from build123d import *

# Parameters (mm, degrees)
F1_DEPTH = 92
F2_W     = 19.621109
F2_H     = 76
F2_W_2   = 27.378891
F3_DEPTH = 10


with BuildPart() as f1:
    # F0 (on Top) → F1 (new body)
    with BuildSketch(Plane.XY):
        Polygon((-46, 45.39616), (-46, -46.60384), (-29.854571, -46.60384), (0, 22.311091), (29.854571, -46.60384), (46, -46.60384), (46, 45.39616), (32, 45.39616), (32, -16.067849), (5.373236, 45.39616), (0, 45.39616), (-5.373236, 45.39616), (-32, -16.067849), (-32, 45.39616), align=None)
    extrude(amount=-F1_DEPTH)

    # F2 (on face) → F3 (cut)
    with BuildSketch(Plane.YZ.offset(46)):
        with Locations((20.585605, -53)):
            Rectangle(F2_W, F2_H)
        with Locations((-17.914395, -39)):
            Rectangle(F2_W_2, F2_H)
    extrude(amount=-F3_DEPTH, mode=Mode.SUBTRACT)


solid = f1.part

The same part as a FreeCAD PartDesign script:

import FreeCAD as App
import Part
import Sketcher
from FreeCAD import Vector


def add_polygon(sketch, points):
    """Adds a closed chain of lines whose ends are joined by coincident constraints."""
    first, n = sketch.GeometryCount, len(points)
    for a, b in zip(points, points[1:] + points[:1]):
        sketch.addGeometry(Part.LineSegment(App.Vector(*a, 0), App.Vector(*b, 0)), False)
    for i in range(n):
        sketch.addConstraint(Sketcher.Constraint("Coincident", first + i, 2, first + (i + 1) % n, 1))

doc = App.newDocument("Part")
params = doc.addObject("Spreadsheet::Sheet", "Params")
for row, (alias, value) in enumerate([
    ("sketch1_width", "14 mm"),
    ("sketch1_height", "92 mm"),
    ("pad1_length", "92 mm"),
    ("sketch2_height", "76 mm"),
    ("pocket1_length", "10 mm"),
], start=1):
    params.set(f"A{row}", alias)
    params.set(f"B{row}", "=" + value)
    params.setAlias(f"B{row}", alias)

body = doc.addObject("PartDesign::Body", "Body")

# Sketch on XY plane
sketch1 = body.newObject("Sketcher::SketchObject", "Sketch")
sketch1.AttachmentSupport = (doc.getObject("XY_Plane"), [""])
sketch1.MapMode = "FlatFace"
add_polygon(sketch1, [(-46, 45.39616), (-46, -46.60384), (-29.854571, -46.60384), (0, 22.311091), (29.854571, -46.60384), (46, -46.60384), (46, 45.39616), (32, 45.39616), (32, -16.067849), (5.373236, 45.39616), (-5.373236, 45.39616), (-32, -16.067849), (-32, 45.39616)])  # lines 0-12
sketch1.addConstraint(Sketcher.Constraint("Vertical", 0))
sketch1.addConstraint(Sketcher.Constraint("Horizontal", 1))
sketch1.addConstraint(Sketcher.Constraint("Horizontal", 4))
sketch1.addConstraint(Sketcher.Constraint("Vertical", 5))
sketch1.addConstraint(Sketcher.Constraint("Horizontal", 6))
sketch1.addConstraint(Sketcher.Constraint("Vertical", 7))
sketch1.addConstraint(Sketcher.Constraint("Horizontal", 9))
sketch1.addConstraint(Sketcher.Constraint("Vertical", 11))
sketch1.addConstraint(Sketcher.Constraint("Horizontal", 12))
sketch1.addConstraint(Sketcher.Constraint("Symmetric", 1, 2, 3, 2, -2))
sketch1.addConstraint(Sketcher.Constraint("Symmetric", 7, 2, 10, 2, -2))
sketch1.addConstraint(Sketcher.Constraint("Symmetric", 5, 2, 12, 2, -2))
sketch1.addConstraint(Sketcher.Constraint("PointOnObject", 2, 2, -2))
sketch1.addConstraint(Sketcher.Constraint("Parallel", 3, 8))
sketch1.addConstraint(Sketcher.Constraint("Parallel", 2, 10))
sketch1.addConstraint(Sketcher.Constraint("Horizontal", 6, 2, 8, 2))
sketch1.addConstraint(Sketcher.Constraint("DistanceX", 6, 2, 6, 1, 14.0))
sketch1.addConstraint(Sketcher.Constraint("DistanceY", 0, 2, 0, 1, 92.0))
sketch1.addConstraint(Sketcher.Constraint("DistanceX", 0, 2, -1, 1, 46.0))
sketch1.addConstraint(Sketcher.Constraint("DistanceX", 1, 1, 1, 2, 16.145429))
sketch1.addConstraint(Sketcher.Constraint("DistanceY", 7, 2, 7, 1, 61.464009))
sketch1.addConstraint(Sketcher.Constraint("DistanceX", 9, 2, 9, 1, 10.746472))
sketch1.addConstraint(Sketcher.Constraint("DistanceY", 0, 2, -1, 1, 46.60384))
sketch1.setExpression("Constraints[29]", "Params.sketch1_width")
sketch1.setExpression("Constraints[30]", "Params.sketch1_height")
pad1 = body.newObject("PartDesign::Pad", "Pad")
pad1.Profile = sketch1
pad1.setExpression("Length", "Params.pad1_length")
pad1.Reversed = True

# Sketch on YZ plane
sketch2 = body.newObject("Sketcher::SketchObject", "Sketch001")
sketch2.AttachmentSupport = (doc.getObject("YZ_Plane"), [""])
sketch2.MapMode = "FlatFace"
sketch2.AttachmentOffset = App.Placement(Vector(0, 0, 46), App.Rotation())
add_polygon(sketch2, [(10.775051, -15), (10.775051, -91), (30.396159, -91), (30.396159, -15)])  # lines 0-3
add_polygon(sketch2, [(-31.603841, -1), (-31.603841, -77), (-4.22495, -77), (-4.22495, -1)])  # lines 4-7
sketch2.addConstraint(Sketcher.Constraint("Vertical", 0))
sketch2.addConstraint(Sketcher.Constraint("Horizontal", 1))
sketch2.addConstraint(Sketcher.Constraint("Vertical", 2))
sketch2.addConstraint(Sketcher.Constraint("Horizontal", 3))
sketch2.addConstraint(Sketcher.Constraint("Vertical", 4))
sketch2.addConstraint(Sketcher.Constraint("Horizontal", 5))
sketch2.addConstraint(Sketcher.Constraint("Vertical", 6))
sketch2.addConstraint(Sketcher.Constraint("Horizontal", 7))
sketch2.addConstraint(Sketcher.Constraint("Equal", 2, 4))
sketch2.addConstraint(Sketcher.Constraint("DistanceY", 0, 2, 0, 1, 76.0))
sketch2.addConstraint(Sketcher.Constraint("DistanceY", 0, 2, -1, 1, 91.0))
sketch2.addConstraint(Sketcher.Constraint("DistanceY", 4, 2, -1, 1, 77.0))
sketch2.addConstraint(Sketcher.Constraint("DistanceX", 4, 2, 1, 2, 62.0))
sketch2.addConstraint(Sketcher.Constraint("DistanceX", 5, 2, 0, 2, 15.0))
sketch2.addConstraint(Sketcher.Constraint("DistanceX", 1, 1, 1, 2, 19.621109))
sketch2.addConstraint(Sketcher.Constraint("DistanceX", -1, 1, 0, 2, 10.775051))
sketch2.setExpression("Constraints[17]", "Params.sketch2_height")
pocket1 = body.newObject("PartDesign::Pocket", "Pocket")
pocket1.Profile = sketch2
pocket1.setExpression("Length", "Params.pocket1_length")

doc.recompute()
